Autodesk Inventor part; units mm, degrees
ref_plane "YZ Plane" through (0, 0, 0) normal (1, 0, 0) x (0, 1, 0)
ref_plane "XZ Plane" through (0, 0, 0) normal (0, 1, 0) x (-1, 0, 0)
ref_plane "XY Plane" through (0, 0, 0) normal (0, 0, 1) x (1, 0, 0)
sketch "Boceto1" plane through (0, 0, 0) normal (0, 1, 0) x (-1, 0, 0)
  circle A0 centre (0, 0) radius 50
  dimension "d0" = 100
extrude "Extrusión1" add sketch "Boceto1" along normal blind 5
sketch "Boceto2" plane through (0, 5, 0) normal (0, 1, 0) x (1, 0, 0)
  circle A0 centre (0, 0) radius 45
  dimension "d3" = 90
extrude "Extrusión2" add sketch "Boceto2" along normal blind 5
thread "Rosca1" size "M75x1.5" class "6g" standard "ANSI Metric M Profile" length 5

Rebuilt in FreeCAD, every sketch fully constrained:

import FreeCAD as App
import Part
import Sketcher
from FreeCAD import Vector
Q = App.Units.Quantity

doc = App.newDocument("Part")
body = doc.addObject("PartDesign::Body", "Body")

sketch1 = body.newObject("Sketcher::SketchObject", "Sketch")
sketch1.AttachmentSupport = (doc.getObject("XZ_Plane"), [""])
sketch1.MapMode = "FlatFace"
sketch1.addGeometry(Part.Circle(Vector(0, 0, 0), Vector(0, 0, 1), 50), False)
sketch1.addConstraint([
    Sketcher.Constraint("Coincident", 0, 3, -1, 1),
    Sketcher.Constraint("Diameter", 0, Q("100 mm")),
])
pad1 = body.newObject("PartDesign::Pad", "Pad")
pad1.Profile = sketch1
pad1.Length = 5
pad1.Reversed = True

sketch2 = body.newObject("Sketcher::SketchObject", "Sketch001")
sketch2.AttachmentSupport = (doc.getObject("XZ_Plane"), [""])
sketch2.MapMode = "FlatFace"
sketch2.AttachmentOffset = App.Placement(Vector(0, 0, -5), App.Rotation())
sketch2.addGeometry(Part.Circle(Vector(0, 0, 0), Vector(0, 0, 1), 45), False)
sketch2.addConstraint([
    Sketcher.Constraint("Coincident", 0, 3, -1, 1),
    Sketcher.Constraint("Diameter", 0, Q("90 mm")),
])
pad2 = body.newObject("PartDesign::Pad", "Pad001")
pad2.Profile = sketch2
pad2.Length = 5
pad2.Reversed = True

doc.recompute()
